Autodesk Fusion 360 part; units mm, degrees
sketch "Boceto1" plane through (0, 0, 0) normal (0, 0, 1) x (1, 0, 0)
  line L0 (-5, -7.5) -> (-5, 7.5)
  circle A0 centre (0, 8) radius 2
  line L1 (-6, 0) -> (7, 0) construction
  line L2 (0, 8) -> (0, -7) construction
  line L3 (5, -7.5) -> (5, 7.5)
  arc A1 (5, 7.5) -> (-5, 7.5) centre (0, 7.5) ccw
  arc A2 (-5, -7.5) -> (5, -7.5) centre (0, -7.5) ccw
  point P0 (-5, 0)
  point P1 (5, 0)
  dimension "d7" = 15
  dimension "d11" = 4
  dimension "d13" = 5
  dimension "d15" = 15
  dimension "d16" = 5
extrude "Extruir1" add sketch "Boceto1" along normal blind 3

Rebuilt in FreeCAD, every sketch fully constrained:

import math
import FreeCAD as App
import Part
import Sketcher

doc = App.newDocument("Part")
body = doc.addObject("PartDesign::Body", "Body")

sketch1 = doc.addObject("Sketcher::SketchObject", "Sketch")
body.addObject(sketch1)
sketch1.AttachmentSupport = (doc.XY_Plane, [""])
sketch1.MapMode = "FlatFace"
sketch1.addGeometry([
    Part.LineSegment(App.Vector(-5, 7.5, 0), App.Vector(-5, -7.5, 0)),
    Part.ArcOfCircle(Part.Circle(App.Vector(0, -7.5, 0), App.Vector(0, 0, 1), 5), math.radians(180), math.radians(360)),
    Part.LineSegment(App.Vector(5, -7.5, 0), App.Vector(5, 7.5, 0)),
    Part.ArcOfCircle(Part.Circle(App.Vector(0, 7.5, 0), App.Vector(0, 0, 1), 5), math.radians(0), math.radians(180)),
    Part.Circle(App.Vector(0, 8, 0), App.Vector(0, 0, 1), 2),
], False)
sketch1.addConstraint([
    Sketcher.Constraint("Tangent", 0, 2, 1, 1),
    Sketcher.Constraint("Tangent", 1, 2, 2, 1),
    Sketcher.Constraint("Tangent", 2, 2, 3, 1),
    Sketcher.Constraint("Tangent", 3, 2, 0, 1),
    Sketcher.Constraint("Vertical", 0),
    Sketcher.Constraint("Vertical", 2),
    Sketcher.Constraint("Symmetric", 1, 3, 3, 3, -1, 1),
    Sketcher.Constraint("PointOnObject", 4, 3, -2),
    Sketcher.Constraint("Diameter", 4, 4.0),
    Sketcher.Constraint("Radius", 1, 5.0),
    Sketcher.Constraint("DistanceY", 0, 2, 0, 1, 15.0),
    Sketcher.Constraint("DistanceY", -1, 1, 4, 3, 8.0),
])
pad1 = doc.addObject("PartDesign::Pad", "Pad")
body.addObject(pad1)
pad1.Profile = sketch1
pad1.Length = 3

doc.recompute()
